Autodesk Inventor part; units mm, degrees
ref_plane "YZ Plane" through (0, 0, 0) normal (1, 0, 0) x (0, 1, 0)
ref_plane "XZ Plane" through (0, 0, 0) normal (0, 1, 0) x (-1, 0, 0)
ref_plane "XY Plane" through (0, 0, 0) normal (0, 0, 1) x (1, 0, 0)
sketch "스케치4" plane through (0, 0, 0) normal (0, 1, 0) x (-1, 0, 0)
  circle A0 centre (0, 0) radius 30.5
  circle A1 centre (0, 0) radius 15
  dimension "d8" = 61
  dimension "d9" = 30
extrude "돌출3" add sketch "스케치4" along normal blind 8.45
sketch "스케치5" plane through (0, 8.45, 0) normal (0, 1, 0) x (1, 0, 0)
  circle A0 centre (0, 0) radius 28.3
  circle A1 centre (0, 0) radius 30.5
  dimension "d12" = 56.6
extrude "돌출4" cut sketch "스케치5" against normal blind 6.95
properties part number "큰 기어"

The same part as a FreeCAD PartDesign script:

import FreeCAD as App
import Part
import Sketcher

doc = App.newDocument("Part")
body = doc.addObject("PartDesign::Body", "Body")

# Sketch on XZ plane
sketch1 = body.newObject("Sketcher::SketchObject", "Sketch")
sketch1.AttachmentSupport = (doc.getObject("XZ_Plane"), [""])
sketch1.MapMode = "FlatFace"
sketch1.addGeometry([
    Part.Circle(App.Vector(0, 0, 0), App.Vector(0, 0, 1), 30),
    Part.Circle(App.Vector(0, 0, 0), App.Vector(0, 0, 1), 15),
], False)
sketch1.addConstraint([
    Sketcher.Constraint("Coincident", 0, 3, -1, 1),
    Sketcher.Constraint("Coincident", 1, 3, -1, 1),
    Sketcher.Constraint("Diameter", 0, 61.0),
    Sketcher.Constraint("Diameter", 1, 30.0),
])
pad1 = body.newObject("PartDesign::Pad", "Pad")
pad1.Profile = sketch1
pad1.Length = 8.45
pad1.Reversed = True

# Sketch on XZ plane
sketch2 = body.newObject("Sketcher::SketchObject", "Sketch001")
sketch2.AttachmentSupport = (doc.getObject("XZ_Plane"), [""])
sketch2.MapMode = "FlatFace"
sketch2.AttachmentOffset = App.Placement(App.Vector(0, 0, -8.45), App.Rotation())
sketch2.addGeometry([
    Part.Circle(App.Vector(0, 0, 0), App.Vector(0, 0, 1), 30),
    Part.Circle(App.Vector(0, 0, 0), App.Vector(0, 0, 1), 28),
], False)
sketch2.addConstraint([
    Sketcher.Constraint("Coincident", 0, 3, -1, 1),
    Sketcher.Constraint("Coincident", 1, 3, -1, 1),
    Sketcher.Constraint("Diameter", 1, 56.6),
    Sketcher.Constraint("Diameter", 0, 61.0),
])
pocket1 = body.newObject("PartDesign::Pocket", "Pocket")
pocket1.Profile = sketch2
pocket1.Length = 6.95
pocket1.Reversed = True

doc.recompute()
